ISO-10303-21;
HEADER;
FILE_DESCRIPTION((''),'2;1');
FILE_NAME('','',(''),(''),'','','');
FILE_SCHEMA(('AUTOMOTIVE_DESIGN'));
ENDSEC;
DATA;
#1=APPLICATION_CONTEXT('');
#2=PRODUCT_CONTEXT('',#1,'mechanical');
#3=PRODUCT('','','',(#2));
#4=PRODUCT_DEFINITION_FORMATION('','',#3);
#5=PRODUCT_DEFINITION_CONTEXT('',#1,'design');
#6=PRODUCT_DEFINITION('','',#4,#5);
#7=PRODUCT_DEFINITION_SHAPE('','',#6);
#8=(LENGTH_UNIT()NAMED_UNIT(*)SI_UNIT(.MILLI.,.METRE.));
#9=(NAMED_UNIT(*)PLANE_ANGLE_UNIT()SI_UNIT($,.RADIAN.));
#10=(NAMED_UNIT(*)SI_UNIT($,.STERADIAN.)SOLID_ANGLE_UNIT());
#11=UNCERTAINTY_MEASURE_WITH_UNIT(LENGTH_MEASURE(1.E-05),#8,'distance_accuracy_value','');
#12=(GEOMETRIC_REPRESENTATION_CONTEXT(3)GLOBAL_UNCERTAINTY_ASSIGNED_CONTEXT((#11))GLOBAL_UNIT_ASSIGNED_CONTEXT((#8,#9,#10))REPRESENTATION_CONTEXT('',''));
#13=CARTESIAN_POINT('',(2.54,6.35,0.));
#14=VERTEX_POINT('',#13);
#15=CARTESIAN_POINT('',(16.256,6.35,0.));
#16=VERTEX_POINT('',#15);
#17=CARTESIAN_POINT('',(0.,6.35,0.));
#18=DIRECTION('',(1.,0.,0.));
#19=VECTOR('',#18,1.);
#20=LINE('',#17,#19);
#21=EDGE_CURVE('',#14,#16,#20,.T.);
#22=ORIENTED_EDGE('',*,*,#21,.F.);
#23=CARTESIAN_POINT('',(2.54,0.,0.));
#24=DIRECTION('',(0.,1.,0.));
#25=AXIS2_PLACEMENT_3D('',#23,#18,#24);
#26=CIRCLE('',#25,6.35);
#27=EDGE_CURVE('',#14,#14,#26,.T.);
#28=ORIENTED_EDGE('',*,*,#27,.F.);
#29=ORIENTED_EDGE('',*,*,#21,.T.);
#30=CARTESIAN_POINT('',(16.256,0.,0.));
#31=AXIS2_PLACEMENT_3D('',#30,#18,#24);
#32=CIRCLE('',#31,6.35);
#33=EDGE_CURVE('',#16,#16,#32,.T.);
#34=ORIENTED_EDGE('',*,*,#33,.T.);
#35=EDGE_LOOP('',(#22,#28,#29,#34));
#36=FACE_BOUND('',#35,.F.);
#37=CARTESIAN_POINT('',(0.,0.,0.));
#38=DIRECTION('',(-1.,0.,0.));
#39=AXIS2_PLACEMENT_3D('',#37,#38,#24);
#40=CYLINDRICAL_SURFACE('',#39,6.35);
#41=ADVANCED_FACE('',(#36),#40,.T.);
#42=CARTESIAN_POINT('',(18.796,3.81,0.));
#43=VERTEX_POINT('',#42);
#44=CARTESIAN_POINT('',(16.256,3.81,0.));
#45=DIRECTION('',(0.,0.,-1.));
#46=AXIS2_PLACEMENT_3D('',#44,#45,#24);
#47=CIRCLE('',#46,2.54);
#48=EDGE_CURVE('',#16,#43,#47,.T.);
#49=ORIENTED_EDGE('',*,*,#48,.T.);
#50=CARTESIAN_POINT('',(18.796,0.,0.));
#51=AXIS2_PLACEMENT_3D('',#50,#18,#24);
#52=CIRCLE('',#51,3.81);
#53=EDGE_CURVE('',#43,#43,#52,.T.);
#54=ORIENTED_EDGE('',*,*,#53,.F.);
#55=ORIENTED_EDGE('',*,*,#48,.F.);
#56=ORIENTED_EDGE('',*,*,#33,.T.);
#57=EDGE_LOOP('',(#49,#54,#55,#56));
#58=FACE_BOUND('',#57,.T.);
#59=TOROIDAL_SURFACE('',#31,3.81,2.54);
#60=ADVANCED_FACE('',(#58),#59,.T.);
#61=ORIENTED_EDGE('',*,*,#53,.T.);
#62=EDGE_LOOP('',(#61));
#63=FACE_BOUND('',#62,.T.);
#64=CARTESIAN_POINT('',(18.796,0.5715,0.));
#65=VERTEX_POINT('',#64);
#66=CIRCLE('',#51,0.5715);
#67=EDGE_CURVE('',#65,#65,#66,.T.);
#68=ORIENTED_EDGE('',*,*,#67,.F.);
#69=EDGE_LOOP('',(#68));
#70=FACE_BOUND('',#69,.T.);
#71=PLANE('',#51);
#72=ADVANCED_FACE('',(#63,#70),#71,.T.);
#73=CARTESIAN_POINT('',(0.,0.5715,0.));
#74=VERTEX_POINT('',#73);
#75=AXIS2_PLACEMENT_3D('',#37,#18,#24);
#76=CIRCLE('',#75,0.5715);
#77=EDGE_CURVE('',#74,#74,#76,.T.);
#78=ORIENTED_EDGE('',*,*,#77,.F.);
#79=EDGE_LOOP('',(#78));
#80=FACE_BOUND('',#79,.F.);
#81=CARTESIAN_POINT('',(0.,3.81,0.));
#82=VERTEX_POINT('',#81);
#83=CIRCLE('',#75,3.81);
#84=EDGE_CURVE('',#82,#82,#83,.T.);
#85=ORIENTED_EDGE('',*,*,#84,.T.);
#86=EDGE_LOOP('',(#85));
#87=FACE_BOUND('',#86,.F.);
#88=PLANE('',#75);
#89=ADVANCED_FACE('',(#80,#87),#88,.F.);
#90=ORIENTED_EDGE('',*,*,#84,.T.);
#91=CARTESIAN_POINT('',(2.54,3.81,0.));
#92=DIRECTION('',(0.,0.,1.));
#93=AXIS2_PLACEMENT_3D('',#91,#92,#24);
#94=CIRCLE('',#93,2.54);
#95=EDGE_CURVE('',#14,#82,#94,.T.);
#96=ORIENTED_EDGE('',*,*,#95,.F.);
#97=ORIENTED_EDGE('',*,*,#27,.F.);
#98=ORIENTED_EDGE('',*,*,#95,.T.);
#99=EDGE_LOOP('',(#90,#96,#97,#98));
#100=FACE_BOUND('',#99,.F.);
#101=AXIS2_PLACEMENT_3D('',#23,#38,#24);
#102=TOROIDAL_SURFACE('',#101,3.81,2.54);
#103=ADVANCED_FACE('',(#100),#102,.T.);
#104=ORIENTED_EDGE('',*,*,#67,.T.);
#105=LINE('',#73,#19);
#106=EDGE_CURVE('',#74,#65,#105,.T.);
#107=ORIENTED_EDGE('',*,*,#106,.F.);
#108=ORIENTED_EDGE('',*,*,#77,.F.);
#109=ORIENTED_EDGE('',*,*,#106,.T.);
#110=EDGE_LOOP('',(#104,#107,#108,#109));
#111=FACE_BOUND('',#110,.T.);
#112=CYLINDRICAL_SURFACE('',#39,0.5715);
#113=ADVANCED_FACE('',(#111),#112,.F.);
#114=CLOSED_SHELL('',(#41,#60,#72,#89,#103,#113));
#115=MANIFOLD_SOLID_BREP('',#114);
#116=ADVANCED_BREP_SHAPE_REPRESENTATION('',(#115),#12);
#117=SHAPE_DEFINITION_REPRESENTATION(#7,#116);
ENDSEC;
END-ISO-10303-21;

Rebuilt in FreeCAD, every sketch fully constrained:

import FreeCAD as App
import Part
import Sketcher

V = App.Vector
Q = App.Units.Quantity


def edges_at(feature, points):
    """Names of the edges that pass closest to the given points."""
    edges = feature.Shape.Edges
    near = lambda p: min(range(len(edges)), key=lambda i: edges[i].distToShape(Part.Vertex(*p))[0])
    return sorted({f"Edge{near(p) + 1}" for p in points})

doc = App.newDocument("Part")
body = doc.addObject("PartDesign::Body", "Body")

sketch1 = doc.addObject("Sketcher::SketchObject", "Sketch")
body.addObject(sketch1)
sketch1.AttachmentSupport = (doc.YZ_Plane, [""])
sketch1.MapMode = "FlatFace"
sketch1.addGeometry(Part.Circle(V(0, 0, 0), V(0, 0, 1), 6.35), False)
sketch1.addGeometry(Part.Circle(V(0, 0, 0), V(0, 0, 1), 0.5715), False)
sketch1.addConstraint(Sketcher.Constraint("Coincident", 0, 3, -1, 1))
sketch1.addConstraint(Sketcher.Constraint("Coincident", 1, 3, -1, 1))
sketch1.addConstraint(Sketcher.Constraint("Diameter", 0, Q("0.5 in")))
sketch1.addConstraint(Sketcher.Constraint("Diameter", 1, Q("0.045 in")))
pad1 = doc.addObject("PartDesign::Pad", "Pad")
body.addObject(pad1)
pad1.Profile = sketch1
pad1.Length = Q("0.74 in")
doc.recompute()

fillet = doc.addObject("PartDesign::Fillet", "Fillet")
body.addObject(fillet)
fillet.Base = (pad1, edges_at(pad1, [(18.796, -6.35, 0), (0, -6.35, 0)]))
fillet.Radius = Q("0.1 in")

doc.recompute()
